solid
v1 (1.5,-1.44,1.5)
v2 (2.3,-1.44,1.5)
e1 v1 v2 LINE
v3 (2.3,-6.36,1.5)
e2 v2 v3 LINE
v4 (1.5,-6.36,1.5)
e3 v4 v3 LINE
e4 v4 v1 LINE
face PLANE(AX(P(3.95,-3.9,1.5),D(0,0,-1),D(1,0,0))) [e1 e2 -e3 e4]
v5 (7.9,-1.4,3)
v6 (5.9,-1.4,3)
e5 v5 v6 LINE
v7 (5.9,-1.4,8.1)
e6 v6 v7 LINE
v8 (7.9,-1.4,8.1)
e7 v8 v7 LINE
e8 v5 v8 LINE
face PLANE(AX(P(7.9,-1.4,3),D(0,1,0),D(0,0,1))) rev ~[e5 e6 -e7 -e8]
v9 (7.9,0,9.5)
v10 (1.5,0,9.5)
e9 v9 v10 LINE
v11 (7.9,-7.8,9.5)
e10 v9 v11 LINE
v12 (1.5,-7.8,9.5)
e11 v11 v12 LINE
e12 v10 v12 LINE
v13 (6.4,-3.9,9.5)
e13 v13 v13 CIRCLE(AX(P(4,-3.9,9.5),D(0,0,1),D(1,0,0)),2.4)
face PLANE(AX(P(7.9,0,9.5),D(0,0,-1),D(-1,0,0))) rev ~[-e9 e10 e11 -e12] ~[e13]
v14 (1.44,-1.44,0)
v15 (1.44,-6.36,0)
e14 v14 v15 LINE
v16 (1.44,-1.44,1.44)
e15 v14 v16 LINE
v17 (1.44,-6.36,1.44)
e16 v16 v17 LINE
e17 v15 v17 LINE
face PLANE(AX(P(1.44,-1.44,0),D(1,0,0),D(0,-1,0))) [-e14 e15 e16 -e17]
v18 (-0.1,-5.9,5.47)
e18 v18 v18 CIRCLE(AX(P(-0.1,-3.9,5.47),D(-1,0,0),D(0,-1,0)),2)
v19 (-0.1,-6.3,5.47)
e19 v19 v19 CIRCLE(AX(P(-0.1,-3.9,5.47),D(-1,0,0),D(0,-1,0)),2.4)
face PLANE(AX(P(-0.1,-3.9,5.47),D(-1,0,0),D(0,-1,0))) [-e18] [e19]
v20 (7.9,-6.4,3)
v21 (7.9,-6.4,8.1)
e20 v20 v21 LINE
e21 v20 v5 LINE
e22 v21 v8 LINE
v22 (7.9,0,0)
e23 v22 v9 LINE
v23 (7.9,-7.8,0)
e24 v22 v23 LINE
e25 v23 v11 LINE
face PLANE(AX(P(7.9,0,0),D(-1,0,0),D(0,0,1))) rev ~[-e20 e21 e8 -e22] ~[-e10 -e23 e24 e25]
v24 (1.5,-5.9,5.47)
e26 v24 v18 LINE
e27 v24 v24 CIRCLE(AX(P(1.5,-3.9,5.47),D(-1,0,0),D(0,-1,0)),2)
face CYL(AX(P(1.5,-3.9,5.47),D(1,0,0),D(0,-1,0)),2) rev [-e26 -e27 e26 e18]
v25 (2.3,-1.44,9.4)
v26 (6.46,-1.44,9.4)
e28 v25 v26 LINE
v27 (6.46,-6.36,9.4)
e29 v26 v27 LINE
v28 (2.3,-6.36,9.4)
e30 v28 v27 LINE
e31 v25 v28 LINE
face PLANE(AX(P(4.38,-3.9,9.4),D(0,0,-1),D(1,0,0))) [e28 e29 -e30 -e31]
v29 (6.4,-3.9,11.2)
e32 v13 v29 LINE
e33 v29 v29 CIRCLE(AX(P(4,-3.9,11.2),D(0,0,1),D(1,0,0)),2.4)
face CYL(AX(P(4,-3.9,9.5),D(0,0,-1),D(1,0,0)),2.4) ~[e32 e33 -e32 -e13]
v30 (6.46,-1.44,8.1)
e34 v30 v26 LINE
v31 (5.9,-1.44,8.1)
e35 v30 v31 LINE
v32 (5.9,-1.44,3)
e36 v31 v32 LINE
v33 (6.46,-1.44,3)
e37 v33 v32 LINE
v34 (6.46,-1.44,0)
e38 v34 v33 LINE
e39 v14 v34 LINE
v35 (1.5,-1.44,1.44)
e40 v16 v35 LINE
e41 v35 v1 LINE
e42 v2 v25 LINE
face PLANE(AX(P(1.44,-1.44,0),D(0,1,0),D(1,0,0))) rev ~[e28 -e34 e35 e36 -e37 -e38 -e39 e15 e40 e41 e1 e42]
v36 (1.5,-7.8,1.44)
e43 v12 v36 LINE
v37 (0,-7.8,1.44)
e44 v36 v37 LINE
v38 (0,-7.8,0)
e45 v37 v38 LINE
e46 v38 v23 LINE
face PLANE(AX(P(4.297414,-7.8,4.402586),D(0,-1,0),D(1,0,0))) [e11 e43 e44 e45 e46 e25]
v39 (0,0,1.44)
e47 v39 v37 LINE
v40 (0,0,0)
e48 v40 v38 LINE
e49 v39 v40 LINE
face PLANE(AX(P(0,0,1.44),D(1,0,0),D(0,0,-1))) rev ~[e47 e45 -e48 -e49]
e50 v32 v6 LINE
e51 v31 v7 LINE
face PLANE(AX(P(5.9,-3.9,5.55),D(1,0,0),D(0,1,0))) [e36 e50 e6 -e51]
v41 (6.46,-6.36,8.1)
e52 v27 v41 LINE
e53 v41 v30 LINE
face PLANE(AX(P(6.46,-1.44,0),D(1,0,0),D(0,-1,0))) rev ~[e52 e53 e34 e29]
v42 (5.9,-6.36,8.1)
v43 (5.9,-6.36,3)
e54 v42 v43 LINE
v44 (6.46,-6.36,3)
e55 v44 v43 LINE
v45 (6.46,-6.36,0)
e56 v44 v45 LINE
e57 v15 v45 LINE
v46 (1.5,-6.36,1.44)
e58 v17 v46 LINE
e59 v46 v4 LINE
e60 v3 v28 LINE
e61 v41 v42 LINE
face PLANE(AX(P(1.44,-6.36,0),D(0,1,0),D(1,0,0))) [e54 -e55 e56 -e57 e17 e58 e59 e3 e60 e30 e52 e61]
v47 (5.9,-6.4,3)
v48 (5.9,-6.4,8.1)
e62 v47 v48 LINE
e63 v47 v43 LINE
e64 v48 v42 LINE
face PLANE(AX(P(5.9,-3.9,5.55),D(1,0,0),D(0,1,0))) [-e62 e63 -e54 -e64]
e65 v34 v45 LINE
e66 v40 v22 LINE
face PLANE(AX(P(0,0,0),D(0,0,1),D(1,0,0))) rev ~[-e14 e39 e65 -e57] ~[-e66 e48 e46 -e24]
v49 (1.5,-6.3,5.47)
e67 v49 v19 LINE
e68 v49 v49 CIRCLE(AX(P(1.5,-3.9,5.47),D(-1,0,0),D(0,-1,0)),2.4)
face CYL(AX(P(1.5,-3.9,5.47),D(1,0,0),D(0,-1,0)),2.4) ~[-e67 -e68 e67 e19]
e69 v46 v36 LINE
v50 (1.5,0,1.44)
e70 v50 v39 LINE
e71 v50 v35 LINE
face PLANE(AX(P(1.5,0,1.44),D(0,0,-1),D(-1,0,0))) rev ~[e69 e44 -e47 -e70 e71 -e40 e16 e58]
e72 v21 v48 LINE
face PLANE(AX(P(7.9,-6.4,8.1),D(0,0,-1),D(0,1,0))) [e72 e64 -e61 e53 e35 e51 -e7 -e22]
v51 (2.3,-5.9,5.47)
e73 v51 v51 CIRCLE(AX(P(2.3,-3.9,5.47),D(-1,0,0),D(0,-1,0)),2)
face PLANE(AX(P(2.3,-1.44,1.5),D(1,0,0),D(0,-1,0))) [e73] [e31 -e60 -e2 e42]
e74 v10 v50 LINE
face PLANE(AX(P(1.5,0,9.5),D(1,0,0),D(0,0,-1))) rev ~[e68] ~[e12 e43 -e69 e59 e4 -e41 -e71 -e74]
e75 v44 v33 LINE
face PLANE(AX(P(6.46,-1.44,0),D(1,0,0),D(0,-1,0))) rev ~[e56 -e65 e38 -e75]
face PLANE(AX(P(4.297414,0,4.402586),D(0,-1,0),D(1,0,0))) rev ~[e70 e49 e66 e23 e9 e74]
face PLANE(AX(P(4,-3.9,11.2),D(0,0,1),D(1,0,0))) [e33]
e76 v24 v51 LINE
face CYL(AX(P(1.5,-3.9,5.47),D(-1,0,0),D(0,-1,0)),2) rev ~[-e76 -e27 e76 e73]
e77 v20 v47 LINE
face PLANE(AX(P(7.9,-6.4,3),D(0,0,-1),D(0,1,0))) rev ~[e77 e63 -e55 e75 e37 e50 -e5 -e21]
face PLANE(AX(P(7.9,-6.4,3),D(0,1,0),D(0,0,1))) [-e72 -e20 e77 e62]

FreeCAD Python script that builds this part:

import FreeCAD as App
import Part
import Sketcher
Q = App.Units.Quantity

doc = App.newDocument("Part")
body = doc.addObject("PartDesign::Body", "Body")

sketch1 = doc.addObject("Sketcher::SketchObject", "Sketch")
body.addObject(sketch1)
sketch1.AttachmentSupport = (doc.XZ_Plane, [""])
sketch1.MapMode = "FlatFace"
sketch1.addGeometry([
    Part.LineSegment(App.Vector(0, 1.4, 0), App.Vector(0, 0, 0)),
    Part.LineSegment(App.Vector(0, 0, 0), App.Vector(7.9, 0, 0)),
    Part.LineSegment(App.Vector(7.9, 0, 0), App.Vector(7.9, 9.5, 0)),
    Part.LineSegment(App.Vector(7.9, 9.5, 0), App.Vector(1.5, 9.5, 0)),
    Part.LineSegment(App.Vector(1.5, 9.5, 0), App.Vector(1.5, 1.4, 0)),
    Part.LineSegment(App.Vector(1.5, 1.4, 0), App.Vector(0, 1.4, 0)),
], False)
sketch1.addConstraint([
    Sketcher.Constraint("Coincident", 0, 2, 1, 1),
    Sketcher.Constraint("Coincident", 1, 2, 2, 1),
    Sketcher.Constraint("Coincident", 2, 2, 3, 1),
    Sketcher.Constraint("Coincident", 3, 2, 4, 1),
    Sketcher.Constraint("Coincident", 4, 2, 5, 1),
    Sketcher.Constraint("Coincident", 5, 2, 0, 1),
    Sketcher.Constraint("Vertical", 0),
    Sketcher.Constraint("Horizontal", 1),
    Sketcher.Constraint("Vertical", 2),
    Sketcher.Constraint("Horizontal", 3),
    Sketcher.Constraint("Vertical", 4),
    Sketcher.Constraint("Horizontal", 5),
    Sketcher.Constraint("Coincident", 0, 2, -1, 1),
    Sketcher.Constraint("DistanceX", 1, 1, 1, 2, Q("7.9 mm")),
    Sketcher.Constraint("DistanceX", 3, 2, 3, 1, Q("6.4 mm")),
    Sketcher.Constraint("DistanceY", 2, 1, 2, 2, Q("9.5 mm")),
    Sketcher.Constraint("DistanceY", 0, 2, 0, 1, Q("1.44 mm")),
])
pad1 = doc.addObject("PartDesign::Pad", "Pad")
body.addObject(pad1)
pad1.Profile = sketch1
pad1.Length = 7.8

sketch2 = doc.addObject("Sketcher::SketchObject", "Sketch001")
body.addObject(sketch2)
sketch2.AttachmentSupport = (doc.XY_Plane, [""])
sketch2.MapMode = "FlatFace"
sketch2.AttachmentOffset = App.Placement(App.Vector(0, 0, 9.5), App.Rotation())
sketch2.addGeometry(Part.Circle(App.Vector(4, -3.9, 0), App.Vector(0, 0, 1), 2.4), False)
sketch2.addConstraint([
    Sketcher.Constraint("Diameter", 0, Q("4.8 mm")),
    Sketcher.Constraint("DistanceX", -1, 1, 0, 3, Q("4 mm")),
    Sketcher.Constraint("DistanceY", 0, 3, -1, 1, Q("3.9 mm")),
])
pad2 = doc.addObject("PartDesign::Pad", "Pad001")
body.addObject(pad2)
pad2.Profile = sketch2
pad2.Length = 1.7

sketch3 = doc.addObject("Sketcher::SketchObject", "Sketch002")
body.addObject(sketch3)
sketch3.AttachmentSupport = (doc.XY_Plane, [""])
sketch3.MapMode = "FlatFace"
sketch3.addGeometry([
    Part.LineSegment(App.Vector(1.4, -6.4, 0), App.Vector(1.4, -1.4, 0)),
    Part.LineSegment(App.Vector(1.4, -1.4, 0), App.Vector(6.5, -1.4, 0)),
    Part.LineSegment(App.Vector(6.5, -1.4, 0), App.Vector(6.5, -6.4, 0)),
    Part.LineSegment(App.Vector(6.5, -6.4, 0), App.Vector(1.4, -6.4, 0)),
], False)
sketch3.addConstraint([
    Sketcher.Constraint("Coincident", 0, 2, 1, 1),
    Sketcher.Constraint("Coincident", 1, 2, 2, 1),
    Sketcher.Constraint("Coincident", 2, 2, 3, 1),
    Sketcher.Constraint("Coincident", 3, 2, 0, 1),
    Sketcher.Constraint("Vertical", 0),
    Sketcher.Constraint("Horizontal", 1),
    Sketcher.Constraint("Vertical", 2),
    Sketcher.Constraint("Horizontal", 3),
    Sketcher.Constraint("DistanceX", 1, 1, 1, 2, Q("5.02 mm")),
    Sketcher.Constraint("DistanceY", 0, 1, 0, 2, Q("4.92 mm")),
    Sketcher.Constraint("DistanceX", -1, 1, 0, 2, Q("1.44 mm")),
    Sketcher.Constraint("DistanceY", 0, 2, -1, 1, Q("1.44 mm")),
])
pocket1 = doc.addObject("PartDesign::Pocket", "Pocket")
body.addObject(pocket1)
pocket1.Profile = sketch3
pocket1.Length = 1.5
pocket1.Reversed = True

sketch4 = doc.addObject("Sketcher::SketchObject", "Sketch003")
body.addObject(sketch4)
sketch4.AttachmentSupport = (doc.XY_Plane, [""])
sketch4.MapMode = "FlatFace"
sketch4.AttachmentOffset = App.Placement(App.Vector(0, 0, 1.5), App.Rotation())
sketch4.addGeometry([
    Part.LineSegment(App.Vector(2.3, -6.4, 0), App.Vector(2.3, -1.4, 0)),
    Part.LineSegment(App.Vector(2.3, -1.4, 0), App.Vector(6.5, -1.4, 0)),
    Part.LineSegment(App.Vector(6.5, -1.4, 0), App.Vector(6.5, -6.4, 0)),
    Part.LineSegment(App.Vector(6.5, -6.4, 0), App.Vector(2.3, -6.4, 0)),
], False)
sketch4.addConstraint([
    Sketcher.Constraint("Coincident", 0, 2, 1, 1),
    Sketcher.Constraint("Coincident", 1, 2, 2, 1),
    Sketcher.Constraint("Coincident", 2, 2, 3, 1),
    Sketcher.Constraint("Coincident", 3, 2, 0, 1),
    Sketcher.Constraint("Vertical", 0),
    Sketcher.Constraint("Horizontal", 1),
    Sketcher.Constraint("Vertical", 2),
    Sketcher.Constraint("Horizontal", 3),
    Sketcher.Constraint("DistanceX", 1, 1, 1, 2, Q("4.16 mm")),
    Sketcher.Constraint("DistanceY", 0, 1, 0, 2, Q("4.92 mm")),
    Sketcher.Constraint("DistanceX", -1, 1, 0, 2, Q("2.3 mm")),
    Sketcher.Constraint("DistanceY", 0, 2, -1, 1, Q("1.44 mm")),
])
pocket2 = doc.addObject("PartDesign::Pocket", "Pocket001")
body.addObject(pocket2)
pocket2.Profile = sketch4
pocket2.Length = 7.9
pocket2.Reversed = True

sketch5 = doc.addObject("Sketcher::SketchObject", "Sketch004")
body.addObject(sketch5)
sketch5.AttachmentSupport = (doc.YZ_Plane, [""])
sketch5.MapMode = "FlatFace"
sketch5.AttachmentOffset = App.Placement(App.Vector(0, 0, 1.5), App.Rotation())
sketch5.addGeometry([
    Part.Circle(App.Vector(-3.9, 5.5, 0), App.Vector(0, 0, 1), 2.4),
    Part.Circle(App.Vector(-3.9, 5.5, 0), App.Vector(0, 0, 1), 2),
], False)
sketch5.addConstraint([
    Sketcher.Constraint("Coincident", 1, 3, 0, 3),
    Sketcher.Constraint("Diameter", 1, Q("4 mm")),
    Sketcher.Constraint("Diameter", 0, Q("4.8 mm")),
    Sketcher.Constraint("DistanceX", 0, 3, -1, 1, Q("3.9 mm")),
    Sketcher.Constraint("DistanceY", -1, 1, 0, 3, Q("5.47 mm")),
])
pad3 = doc.addObject("PartDesign::Pad", "Pad002")
body.addObject(pad3)
pad3.Profile = sketch5
pad3.Length = 1.6
pad3.Reversed = True

sketch6 = doc.addObject("Sketcher::SketchObject", "Sketch005")
body.addObject(sketch6)
sketch6.AttachmentSupport = (doc.YZ_Plane, [""])
sketch6.MapMode = "FlatFace"
sketch6.AttachmentOffset = App.Placement(App.Vector(0, 0, 1.5), App.Rotation())
sketch6.addGeometry(Part.Circle(App.Vector(-3.9, 5.5, 0), App.Vector(0, 0, 1), 2), False)
sketch6.addConstraint([
    Sketcher.Constraint("Diameter", 0, Q("4 mm")),
    Sketcher.Constraint("DistanceX", 0, 3, -1, 1, Q("3.9 mm")),
    Sketcher.Constraint("DistanceY", -1, 1, 0, 3, Q("5.47 mm")),
])
pocket3 = doc.addObject("PartDesign::Pocket", "Pocket002")
body.addObject(pocket3)
pocket3.Profile = sketch6
pocket3.Length = 1
pocket3.Reversed = True

sketch7 = doc.addObject("Sketcher::SketchObject", "Sketch006")
body.addObject(sketch7)
sketch7.AttachmentSupport = (doc.YZ_Plane, [""])
sketch7.MapMode = "FlatFace"
sketch7.AttachmentOffset = App.Placement(App.Vector(0, 0, 7.9), App.Rotation())
sketch7.addGeometry([
    Part.LineSegment(App.Vector(-6, 8, 0), App.Vector(-6, 3, 0)),
    Part.LineSegment(App.Vector(-6, 3, 0), App.Vector(-1, 3, 0)),
    Part.LineSegment(App.Vector(-1, 3, 0), App.Vector(-1, 8, 0)),
    Part.LineSegment(App.Vector(-1, 8, 0), App.Vector(-6, 8, 0)),
], False)
sketch7.addConstraint([
    Sketcher.Constraint("Coincident", 0, 2, 1, 1),
    Sketcher.Constraint("Coincident", 1, 2, 2, 1),
    Sketcher.Constraint("Coincident", 2, 2, 3, 1),
    Sketcher.Constraint("Coincident", 3, 2, 0, 1),
    Sketcher.Constraint("Vertical", 0),
    Sketcher.Constraint("Horizontal", 1),
    Sketcher.Constraint("Vertical", 2),
    Sketcher.Constraint("Horizontal", 3),
    Sketcher.Constraint("DistanceX", 1, 1, 1, 2, Q("5 mm")),
    Sketcher.Constraint("DistanceY", 0, 2, 0, 1, Q("5.1 mm")),
    Sketcher.Constraint("DistanceY", -1, 1, 0, 2, Q("3 mm")),
    Sketcher.Constraint("DistanceX", 0, 2, -1, 1, Q("6.4 mm")),
])
pocket4 = doc.addObject("PartDesign::Pocket", "Pocket003")
body.addObject(pocket4)
pocket4.Profile = sketch7
pocket4.Length = 2

doc.recompute()
